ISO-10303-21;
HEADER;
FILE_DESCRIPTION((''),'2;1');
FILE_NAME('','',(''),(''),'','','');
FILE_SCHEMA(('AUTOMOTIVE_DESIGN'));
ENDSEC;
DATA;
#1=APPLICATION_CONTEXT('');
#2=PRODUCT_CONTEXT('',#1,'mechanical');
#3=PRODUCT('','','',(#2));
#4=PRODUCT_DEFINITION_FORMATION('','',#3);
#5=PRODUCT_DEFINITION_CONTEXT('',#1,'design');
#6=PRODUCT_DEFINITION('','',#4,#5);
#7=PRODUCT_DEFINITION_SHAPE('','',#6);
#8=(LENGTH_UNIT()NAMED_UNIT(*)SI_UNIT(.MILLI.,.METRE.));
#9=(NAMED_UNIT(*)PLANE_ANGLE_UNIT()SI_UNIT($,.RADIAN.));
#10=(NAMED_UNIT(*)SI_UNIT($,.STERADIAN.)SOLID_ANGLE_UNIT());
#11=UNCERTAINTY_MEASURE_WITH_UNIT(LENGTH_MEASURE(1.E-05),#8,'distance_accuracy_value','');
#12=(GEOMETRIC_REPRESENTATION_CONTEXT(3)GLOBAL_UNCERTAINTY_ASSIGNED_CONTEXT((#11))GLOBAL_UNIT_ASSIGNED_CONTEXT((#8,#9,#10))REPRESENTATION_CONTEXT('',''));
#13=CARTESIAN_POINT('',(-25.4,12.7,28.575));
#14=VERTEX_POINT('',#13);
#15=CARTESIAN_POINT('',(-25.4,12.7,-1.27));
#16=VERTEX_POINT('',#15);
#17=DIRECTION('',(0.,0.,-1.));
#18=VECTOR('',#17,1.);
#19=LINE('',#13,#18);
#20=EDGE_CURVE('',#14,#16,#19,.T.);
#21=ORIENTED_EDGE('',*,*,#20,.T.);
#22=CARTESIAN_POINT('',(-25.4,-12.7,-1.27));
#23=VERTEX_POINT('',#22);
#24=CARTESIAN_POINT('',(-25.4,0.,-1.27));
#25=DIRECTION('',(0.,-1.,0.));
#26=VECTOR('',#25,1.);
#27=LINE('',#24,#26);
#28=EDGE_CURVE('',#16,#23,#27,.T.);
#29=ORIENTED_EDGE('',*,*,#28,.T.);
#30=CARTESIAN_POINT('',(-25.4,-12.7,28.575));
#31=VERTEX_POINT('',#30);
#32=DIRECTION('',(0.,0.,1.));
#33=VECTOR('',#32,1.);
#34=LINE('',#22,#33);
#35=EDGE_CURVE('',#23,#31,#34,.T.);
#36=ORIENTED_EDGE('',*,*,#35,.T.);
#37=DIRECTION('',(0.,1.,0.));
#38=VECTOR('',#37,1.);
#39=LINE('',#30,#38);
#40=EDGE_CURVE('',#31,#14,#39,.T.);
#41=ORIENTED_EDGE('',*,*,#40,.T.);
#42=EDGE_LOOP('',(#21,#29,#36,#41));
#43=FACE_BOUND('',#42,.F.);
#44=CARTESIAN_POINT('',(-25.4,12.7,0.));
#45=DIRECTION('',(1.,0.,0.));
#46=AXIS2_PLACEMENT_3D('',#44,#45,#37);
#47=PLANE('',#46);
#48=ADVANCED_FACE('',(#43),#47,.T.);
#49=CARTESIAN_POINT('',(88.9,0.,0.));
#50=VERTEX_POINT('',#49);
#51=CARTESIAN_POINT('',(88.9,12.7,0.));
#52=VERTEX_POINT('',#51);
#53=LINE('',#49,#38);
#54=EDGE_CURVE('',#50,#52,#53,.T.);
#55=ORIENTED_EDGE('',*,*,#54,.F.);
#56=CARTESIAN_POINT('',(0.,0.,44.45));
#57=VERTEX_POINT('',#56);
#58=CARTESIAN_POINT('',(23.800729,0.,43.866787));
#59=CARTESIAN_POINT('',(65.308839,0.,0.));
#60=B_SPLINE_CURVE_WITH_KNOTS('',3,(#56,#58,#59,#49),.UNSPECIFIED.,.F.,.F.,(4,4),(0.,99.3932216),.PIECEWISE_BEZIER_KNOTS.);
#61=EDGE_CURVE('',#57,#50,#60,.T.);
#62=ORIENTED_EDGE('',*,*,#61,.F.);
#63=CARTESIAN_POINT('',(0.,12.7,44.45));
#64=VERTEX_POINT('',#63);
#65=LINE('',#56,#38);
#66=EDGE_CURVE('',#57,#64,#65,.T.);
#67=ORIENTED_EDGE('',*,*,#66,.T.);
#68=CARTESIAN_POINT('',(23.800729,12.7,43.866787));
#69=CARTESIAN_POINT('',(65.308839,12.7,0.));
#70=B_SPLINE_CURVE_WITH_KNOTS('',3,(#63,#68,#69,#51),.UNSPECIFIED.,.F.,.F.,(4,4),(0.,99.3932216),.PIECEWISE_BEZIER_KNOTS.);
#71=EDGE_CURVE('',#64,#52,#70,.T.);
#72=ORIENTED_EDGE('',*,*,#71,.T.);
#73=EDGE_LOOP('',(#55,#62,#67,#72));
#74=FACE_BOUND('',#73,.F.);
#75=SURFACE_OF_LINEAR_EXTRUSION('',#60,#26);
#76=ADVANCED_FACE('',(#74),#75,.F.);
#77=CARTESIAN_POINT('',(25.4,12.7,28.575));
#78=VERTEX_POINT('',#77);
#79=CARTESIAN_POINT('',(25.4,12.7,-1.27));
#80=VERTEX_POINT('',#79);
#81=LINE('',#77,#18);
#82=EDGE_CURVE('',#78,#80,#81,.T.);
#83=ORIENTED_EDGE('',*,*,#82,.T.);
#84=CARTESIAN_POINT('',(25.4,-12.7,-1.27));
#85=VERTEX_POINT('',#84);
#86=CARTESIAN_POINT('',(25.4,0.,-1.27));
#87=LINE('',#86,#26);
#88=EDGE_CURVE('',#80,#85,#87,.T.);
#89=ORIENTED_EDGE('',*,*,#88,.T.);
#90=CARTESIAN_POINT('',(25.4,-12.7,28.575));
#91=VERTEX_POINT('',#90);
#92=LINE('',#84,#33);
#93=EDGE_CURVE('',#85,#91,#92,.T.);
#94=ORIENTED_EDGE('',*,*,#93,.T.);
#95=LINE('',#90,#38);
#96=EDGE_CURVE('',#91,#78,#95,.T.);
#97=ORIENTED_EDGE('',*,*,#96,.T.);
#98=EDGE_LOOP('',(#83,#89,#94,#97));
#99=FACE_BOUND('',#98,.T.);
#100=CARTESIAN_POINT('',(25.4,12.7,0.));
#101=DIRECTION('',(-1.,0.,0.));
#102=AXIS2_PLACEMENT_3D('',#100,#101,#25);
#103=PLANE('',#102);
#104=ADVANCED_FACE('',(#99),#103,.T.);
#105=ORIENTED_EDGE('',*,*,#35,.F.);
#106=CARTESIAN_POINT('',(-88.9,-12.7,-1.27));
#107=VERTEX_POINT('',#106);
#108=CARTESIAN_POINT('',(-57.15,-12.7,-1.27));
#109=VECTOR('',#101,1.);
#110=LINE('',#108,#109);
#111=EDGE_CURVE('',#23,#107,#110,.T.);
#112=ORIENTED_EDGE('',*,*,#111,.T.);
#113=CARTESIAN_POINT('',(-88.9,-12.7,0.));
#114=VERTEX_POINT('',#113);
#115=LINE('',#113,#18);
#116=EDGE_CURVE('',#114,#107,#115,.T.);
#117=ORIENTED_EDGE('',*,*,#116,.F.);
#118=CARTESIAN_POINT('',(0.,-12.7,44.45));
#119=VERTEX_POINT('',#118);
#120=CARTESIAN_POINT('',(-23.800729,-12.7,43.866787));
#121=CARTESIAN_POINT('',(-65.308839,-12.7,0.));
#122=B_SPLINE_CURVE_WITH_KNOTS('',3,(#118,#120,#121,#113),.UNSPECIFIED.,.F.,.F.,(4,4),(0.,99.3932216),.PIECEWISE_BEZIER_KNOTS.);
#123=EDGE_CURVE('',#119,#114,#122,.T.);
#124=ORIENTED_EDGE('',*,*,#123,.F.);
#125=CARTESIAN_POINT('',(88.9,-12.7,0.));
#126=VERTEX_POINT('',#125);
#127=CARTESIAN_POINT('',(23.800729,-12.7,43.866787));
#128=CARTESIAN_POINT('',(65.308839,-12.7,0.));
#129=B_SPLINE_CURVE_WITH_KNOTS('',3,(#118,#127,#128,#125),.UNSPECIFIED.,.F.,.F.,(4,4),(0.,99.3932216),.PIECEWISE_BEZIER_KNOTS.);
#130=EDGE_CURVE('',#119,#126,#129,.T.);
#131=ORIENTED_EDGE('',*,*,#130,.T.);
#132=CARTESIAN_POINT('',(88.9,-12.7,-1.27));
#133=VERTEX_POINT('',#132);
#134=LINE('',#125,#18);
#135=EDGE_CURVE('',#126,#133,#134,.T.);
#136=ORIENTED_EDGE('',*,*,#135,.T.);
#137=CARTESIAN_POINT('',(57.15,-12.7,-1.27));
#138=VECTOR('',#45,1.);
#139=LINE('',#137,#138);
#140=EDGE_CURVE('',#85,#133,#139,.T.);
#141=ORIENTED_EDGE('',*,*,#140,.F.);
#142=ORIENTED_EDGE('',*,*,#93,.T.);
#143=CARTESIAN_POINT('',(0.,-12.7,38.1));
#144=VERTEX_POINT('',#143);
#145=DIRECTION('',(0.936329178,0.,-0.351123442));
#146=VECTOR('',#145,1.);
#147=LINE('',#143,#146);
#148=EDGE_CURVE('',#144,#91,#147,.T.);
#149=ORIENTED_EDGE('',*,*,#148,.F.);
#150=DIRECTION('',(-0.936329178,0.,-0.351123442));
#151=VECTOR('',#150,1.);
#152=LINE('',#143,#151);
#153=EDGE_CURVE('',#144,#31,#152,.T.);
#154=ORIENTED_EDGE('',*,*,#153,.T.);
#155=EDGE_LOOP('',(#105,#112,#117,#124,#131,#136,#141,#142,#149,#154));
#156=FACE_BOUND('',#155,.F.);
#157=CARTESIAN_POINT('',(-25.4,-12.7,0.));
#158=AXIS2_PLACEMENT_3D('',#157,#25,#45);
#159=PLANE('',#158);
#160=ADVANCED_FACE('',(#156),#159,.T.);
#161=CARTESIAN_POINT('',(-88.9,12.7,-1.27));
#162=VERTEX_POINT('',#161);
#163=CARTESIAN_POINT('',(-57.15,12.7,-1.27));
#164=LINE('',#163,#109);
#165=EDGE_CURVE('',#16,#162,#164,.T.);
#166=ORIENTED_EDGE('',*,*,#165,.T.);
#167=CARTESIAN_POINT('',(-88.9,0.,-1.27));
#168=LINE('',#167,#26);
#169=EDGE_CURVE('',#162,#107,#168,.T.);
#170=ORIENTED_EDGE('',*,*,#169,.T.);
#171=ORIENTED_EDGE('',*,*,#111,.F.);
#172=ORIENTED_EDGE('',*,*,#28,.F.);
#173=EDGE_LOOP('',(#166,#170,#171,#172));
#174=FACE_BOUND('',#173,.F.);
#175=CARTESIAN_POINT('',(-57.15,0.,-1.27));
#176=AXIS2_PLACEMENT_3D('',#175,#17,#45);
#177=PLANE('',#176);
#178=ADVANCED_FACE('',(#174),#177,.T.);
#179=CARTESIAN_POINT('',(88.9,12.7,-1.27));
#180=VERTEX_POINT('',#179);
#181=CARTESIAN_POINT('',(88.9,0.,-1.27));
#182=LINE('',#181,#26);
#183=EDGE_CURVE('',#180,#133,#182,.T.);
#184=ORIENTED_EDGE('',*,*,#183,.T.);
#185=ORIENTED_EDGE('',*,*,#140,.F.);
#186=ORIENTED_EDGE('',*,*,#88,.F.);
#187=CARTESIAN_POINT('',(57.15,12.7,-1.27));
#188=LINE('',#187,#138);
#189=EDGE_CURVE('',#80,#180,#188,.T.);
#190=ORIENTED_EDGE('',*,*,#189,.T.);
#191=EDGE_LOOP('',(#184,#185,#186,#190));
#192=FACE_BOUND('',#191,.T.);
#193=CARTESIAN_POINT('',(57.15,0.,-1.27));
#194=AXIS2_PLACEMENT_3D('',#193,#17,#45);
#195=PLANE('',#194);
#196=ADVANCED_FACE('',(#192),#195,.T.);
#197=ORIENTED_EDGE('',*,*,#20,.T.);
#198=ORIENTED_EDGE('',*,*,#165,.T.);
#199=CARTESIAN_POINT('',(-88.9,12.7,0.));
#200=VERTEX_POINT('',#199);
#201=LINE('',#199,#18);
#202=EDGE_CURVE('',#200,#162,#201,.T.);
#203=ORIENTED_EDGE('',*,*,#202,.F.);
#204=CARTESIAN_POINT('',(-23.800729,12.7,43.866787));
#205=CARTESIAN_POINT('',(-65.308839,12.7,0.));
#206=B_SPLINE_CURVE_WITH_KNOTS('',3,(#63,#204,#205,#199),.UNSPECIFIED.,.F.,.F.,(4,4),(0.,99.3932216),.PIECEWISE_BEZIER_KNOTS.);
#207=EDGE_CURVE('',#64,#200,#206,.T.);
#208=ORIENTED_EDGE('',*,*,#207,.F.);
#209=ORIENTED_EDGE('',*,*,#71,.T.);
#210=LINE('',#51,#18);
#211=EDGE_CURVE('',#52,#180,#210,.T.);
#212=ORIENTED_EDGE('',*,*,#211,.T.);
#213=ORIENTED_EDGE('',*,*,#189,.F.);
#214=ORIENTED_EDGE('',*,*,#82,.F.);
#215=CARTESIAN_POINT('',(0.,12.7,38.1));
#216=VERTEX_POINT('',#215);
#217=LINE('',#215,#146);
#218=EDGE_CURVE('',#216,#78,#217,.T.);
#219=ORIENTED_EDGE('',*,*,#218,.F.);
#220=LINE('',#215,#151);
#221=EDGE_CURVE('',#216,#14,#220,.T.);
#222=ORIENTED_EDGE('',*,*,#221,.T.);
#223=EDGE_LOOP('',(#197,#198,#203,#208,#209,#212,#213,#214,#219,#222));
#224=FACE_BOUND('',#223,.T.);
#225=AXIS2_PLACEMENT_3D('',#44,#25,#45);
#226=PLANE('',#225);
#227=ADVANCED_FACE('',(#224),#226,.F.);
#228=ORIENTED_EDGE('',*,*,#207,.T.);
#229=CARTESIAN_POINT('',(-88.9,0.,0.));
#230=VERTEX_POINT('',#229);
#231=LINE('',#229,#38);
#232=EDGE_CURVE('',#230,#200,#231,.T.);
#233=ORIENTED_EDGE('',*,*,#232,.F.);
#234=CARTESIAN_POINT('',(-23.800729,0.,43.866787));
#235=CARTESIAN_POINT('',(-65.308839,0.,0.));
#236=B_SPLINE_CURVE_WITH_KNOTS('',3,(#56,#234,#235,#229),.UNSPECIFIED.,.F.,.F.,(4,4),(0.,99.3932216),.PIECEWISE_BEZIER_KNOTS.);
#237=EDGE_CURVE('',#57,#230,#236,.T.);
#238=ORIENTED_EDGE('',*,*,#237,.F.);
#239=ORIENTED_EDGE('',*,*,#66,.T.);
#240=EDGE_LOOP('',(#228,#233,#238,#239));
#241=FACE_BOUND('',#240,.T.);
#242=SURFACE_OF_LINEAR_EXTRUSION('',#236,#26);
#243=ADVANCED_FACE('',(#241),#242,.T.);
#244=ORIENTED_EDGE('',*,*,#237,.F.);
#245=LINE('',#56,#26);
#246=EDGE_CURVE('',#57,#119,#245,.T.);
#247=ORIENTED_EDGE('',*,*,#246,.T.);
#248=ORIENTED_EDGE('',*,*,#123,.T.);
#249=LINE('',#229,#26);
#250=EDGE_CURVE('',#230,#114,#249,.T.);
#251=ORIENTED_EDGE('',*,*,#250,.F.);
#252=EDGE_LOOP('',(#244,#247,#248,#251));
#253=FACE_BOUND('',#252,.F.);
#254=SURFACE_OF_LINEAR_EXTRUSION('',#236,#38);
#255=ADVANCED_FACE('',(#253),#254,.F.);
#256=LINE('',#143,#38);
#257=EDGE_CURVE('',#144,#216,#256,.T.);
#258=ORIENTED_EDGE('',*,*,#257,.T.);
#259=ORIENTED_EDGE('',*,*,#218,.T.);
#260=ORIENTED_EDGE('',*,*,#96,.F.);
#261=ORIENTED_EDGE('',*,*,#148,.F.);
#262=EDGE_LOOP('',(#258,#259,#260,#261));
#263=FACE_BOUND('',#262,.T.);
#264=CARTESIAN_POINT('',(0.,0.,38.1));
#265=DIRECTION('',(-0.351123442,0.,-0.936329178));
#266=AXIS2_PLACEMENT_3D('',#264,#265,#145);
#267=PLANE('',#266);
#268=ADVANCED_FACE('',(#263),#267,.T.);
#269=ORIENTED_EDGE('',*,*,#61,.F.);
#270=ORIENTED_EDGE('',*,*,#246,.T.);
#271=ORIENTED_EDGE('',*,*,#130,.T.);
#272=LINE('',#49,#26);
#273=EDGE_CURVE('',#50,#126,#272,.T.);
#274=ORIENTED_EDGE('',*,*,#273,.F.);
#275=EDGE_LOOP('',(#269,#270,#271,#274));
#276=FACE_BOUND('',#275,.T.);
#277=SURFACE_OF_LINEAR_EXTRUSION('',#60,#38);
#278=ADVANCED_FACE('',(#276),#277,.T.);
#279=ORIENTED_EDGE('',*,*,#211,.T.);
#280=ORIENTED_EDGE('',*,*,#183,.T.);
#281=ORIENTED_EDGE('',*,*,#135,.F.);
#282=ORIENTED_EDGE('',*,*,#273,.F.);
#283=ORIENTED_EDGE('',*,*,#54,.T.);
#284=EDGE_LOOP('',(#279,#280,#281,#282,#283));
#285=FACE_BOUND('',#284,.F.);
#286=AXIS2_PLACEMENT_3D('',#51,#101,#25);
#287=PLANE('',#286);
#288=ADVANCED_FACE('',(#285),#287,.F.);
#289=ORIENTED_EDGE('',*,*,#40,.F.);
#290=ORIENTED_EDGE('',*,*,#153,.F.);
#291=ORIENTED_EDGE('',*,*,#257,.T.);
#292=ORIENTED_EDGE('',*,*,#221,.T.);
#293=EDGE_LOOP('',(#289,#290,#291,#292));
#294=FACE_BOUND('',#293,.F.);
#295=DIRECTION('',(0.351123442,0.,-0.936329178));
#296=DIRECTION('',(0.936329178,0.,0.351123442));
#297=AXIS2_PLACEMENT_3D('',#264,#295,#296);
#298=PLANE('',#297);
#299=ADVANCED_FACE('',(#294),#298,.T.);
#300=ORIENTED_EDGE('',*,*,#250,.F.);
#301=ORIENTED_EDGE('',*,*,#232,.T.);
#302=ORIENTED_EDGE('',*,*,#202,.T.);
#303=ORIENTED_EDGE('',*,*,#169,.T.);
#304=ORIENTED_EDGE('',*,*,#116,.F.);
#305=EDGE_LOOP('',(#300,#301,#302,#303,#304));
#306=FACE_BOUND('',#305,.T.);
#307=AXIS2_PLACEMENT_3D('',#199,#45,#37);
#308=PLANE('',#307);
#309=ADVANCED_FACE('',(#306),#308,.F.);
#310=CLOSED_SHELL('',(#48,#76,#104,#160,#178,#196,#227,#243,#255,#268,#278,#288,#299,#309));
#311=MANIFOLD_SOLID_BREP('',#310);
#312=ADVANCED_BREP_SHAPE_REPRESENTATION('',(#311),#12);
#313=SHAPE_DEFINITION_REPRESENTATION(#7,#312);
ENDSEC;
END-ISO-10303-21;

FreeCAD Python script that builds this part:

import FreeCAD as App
import Part
import Sketcher
Q = App.Units.Quantity

doc = App.newDocument("Part")
body = doc.addObject("PartDesign::Body", "Body")

sketch1 = doc.addObject("Sketcher::SketchObject", "Sketch")
body.addObject(sketch1)
sketch1.AttachmentSupport = (doc.XZ_Plane, [""])
sketch1.MapMode = "FlatFace"
sketch1.addGeometry(Part.LineSegment(App.Vector(25.4, 28.575, 0), App.Vector(25.4, 0, 0)), False)
sketch1.addGeometry(Part.LineSegment(App.Vector(25.4, 0, 0), App.Vector(88.9, 0, 0)), False)
sketch1.addGeometry(Part.BSplineCurve([App.Vector(0, 44.45, 0), App.Vector(23.800729, 43.866787, 0), App.Vector(65.308839, 0, 0), App.Vector(88.9, 0, 0)], [4, 4], [0, 99.3932216], False, 3, [1, 1, 1, 1], False), False)
sketch1.addGeometry(Part.LineSegment(App.Vector(0, 44.45, 0), App.Vector(0, 38.1, 0)), False)
sketch1.addGeometry(Part.LineSegment(App.Vector(0, 38.1, 0), App.Vector(25.4, 28.575, 0)), False)
sketch1.addConstraint(Sketcher.Constraint("Block", 2))
sketch1.addConstraint(Sketcher.Constraint("Coincident", 0, 2, 1, 1))
sketch1.addConstraint(Sketcher.Constraint("Coincident", 1, 2, 2, 2))
sketch1.addConstraint(Sketcher.Constraint("Coincident", 2, 1, 3, 1))
sketch1.addConstraint(Sketcher.Constraint("Coincident", 3, 2, 4, 1))
sketch1.addConstraint(Sketcher.Constraint("Coincident", 4, 2, 0, 1))
sketch1.addConstraint(Sketcher.Constraint("Vertical", 0))
sketch1.addConstraint(Sketcher.Constraint("Horizontal", 1))
sketch1.addConstraint(Sketcher.Constraint("Vertical", 3))
sketch1.addConstraint(Sketcher.Constraint("DistanceX", 1, 1, 1, 2, Q("2.5 in")))
sketch1.addConstraint(Sketcher.Constraint("DistanceY", 3, 2, 3, 1, Q("0.25 in")))
sketch1.addConstraint(Sketcher.Constraint("DistanceY", 0, 2, 0, 1, Q("1.125 in")))
pad1 = doc.addObject("PartDesign::Pad", "Pad")
body.addObject(pad1)
pad1.Profile = sketch1
pad1.Length = Q("1 in")
pad1.Midplane = True

sketch2 = doc.addObject("Sketcher::SketchObject", "Sketch001")
body.addObject(sketch2)
sketch2.AttachmentSupport = (doc.XY_Plane, [""])
sketch2.MapMode = "FlatFace"
sketch2.addGeometry(Part.LineSegment(App.Vector(25, -13, 0), App.Vector(25, 13, 0)), False)
sketch2.addGeometry(Part.LineSegment(App.Vector(25, 13, 0), App.Vector(89, 13, 0)), False)
sketch2.addGeometry(Part.LineSegment(App.Vector(89, 13, 0), App.Vector(89, -13, 0)), False)
sketch2.addGeometry(Part.LineSegment(App.Vector(89, -13, 0), App.Vector(25, -13, 0)), False)
sketch2.addConstraint(Sketcher.Constraint("Coincident", 0, 2, 1, 1))
sketch2.addConstraint(Sketcher.Constraint("Coincident", 1, 2, 2, 1))
sketch2.addConstraint(Sketcher.Constraint("Coincident", 2, 2, 3, 1))
sketch2.addConstraint(Sketcher.Constraint("Coincident", 3, 2, 0, 1))
sketch2.addConstraint(Sketcher.Constraint("Vertical", 0))
sketch2.addConstraint(Sketcher.Constraint("Horizontal", 1))
sketch2.addConstraint(Sketcher.Constraint("Vertical", 2))
sketch2.addConstraint(Sketcher.Constraint("Horizontal", 3))
sketch2.addConstraint(Sketcher.Constraint("DistanceY", 0, 1, 0, 2, Q("1 in")))
sketch2.addConstraint(Sketcher.Constraint("DistanceX", 1, 1, 1, 2, Q("2.5 in")))
sketch2.addConstraint(Sketcher.Constraint("DistanceX", -1, 1, 0, 2, Q("1 in")))
sketch2.addConstraint(Sketcher.Constraint("DistanceY", -1, 1, 0, 2, Q("0.5 in")))
pad2 = doc.addObject("PartDesign::Pad", "Pad001")
body.addObject(pad2)
pad2.Profile = sketch2
pad2.Length = Q("0.05 in")
pad2.Reversed = True
body2 = doc.addObject("PartDesign::Body", "Body001")
doc.recompute()

body2.BaseFeature = body
doc.recompute()

mirroring = doc.addObject("Part::Mirroring", "Mirroring")
mirroring.Source = body
mirroring.Base = App.Vector(0, 0, 41.275)
mirroring.Normal = App.Vector(-1, 0, 0)
body3 = doc.addObject("PartDesign::Body", "Body002")
body3.BaseFeature = mirroring
boolean = doc.addObject("PartDesign::Boolean", "Boolean")
body2.addObject(boolean)
boolean.Type = "Fuse"
boolean.addObjects([body3])
doc.recompute()
mirroring.Visibility = False

doc.recompute()
